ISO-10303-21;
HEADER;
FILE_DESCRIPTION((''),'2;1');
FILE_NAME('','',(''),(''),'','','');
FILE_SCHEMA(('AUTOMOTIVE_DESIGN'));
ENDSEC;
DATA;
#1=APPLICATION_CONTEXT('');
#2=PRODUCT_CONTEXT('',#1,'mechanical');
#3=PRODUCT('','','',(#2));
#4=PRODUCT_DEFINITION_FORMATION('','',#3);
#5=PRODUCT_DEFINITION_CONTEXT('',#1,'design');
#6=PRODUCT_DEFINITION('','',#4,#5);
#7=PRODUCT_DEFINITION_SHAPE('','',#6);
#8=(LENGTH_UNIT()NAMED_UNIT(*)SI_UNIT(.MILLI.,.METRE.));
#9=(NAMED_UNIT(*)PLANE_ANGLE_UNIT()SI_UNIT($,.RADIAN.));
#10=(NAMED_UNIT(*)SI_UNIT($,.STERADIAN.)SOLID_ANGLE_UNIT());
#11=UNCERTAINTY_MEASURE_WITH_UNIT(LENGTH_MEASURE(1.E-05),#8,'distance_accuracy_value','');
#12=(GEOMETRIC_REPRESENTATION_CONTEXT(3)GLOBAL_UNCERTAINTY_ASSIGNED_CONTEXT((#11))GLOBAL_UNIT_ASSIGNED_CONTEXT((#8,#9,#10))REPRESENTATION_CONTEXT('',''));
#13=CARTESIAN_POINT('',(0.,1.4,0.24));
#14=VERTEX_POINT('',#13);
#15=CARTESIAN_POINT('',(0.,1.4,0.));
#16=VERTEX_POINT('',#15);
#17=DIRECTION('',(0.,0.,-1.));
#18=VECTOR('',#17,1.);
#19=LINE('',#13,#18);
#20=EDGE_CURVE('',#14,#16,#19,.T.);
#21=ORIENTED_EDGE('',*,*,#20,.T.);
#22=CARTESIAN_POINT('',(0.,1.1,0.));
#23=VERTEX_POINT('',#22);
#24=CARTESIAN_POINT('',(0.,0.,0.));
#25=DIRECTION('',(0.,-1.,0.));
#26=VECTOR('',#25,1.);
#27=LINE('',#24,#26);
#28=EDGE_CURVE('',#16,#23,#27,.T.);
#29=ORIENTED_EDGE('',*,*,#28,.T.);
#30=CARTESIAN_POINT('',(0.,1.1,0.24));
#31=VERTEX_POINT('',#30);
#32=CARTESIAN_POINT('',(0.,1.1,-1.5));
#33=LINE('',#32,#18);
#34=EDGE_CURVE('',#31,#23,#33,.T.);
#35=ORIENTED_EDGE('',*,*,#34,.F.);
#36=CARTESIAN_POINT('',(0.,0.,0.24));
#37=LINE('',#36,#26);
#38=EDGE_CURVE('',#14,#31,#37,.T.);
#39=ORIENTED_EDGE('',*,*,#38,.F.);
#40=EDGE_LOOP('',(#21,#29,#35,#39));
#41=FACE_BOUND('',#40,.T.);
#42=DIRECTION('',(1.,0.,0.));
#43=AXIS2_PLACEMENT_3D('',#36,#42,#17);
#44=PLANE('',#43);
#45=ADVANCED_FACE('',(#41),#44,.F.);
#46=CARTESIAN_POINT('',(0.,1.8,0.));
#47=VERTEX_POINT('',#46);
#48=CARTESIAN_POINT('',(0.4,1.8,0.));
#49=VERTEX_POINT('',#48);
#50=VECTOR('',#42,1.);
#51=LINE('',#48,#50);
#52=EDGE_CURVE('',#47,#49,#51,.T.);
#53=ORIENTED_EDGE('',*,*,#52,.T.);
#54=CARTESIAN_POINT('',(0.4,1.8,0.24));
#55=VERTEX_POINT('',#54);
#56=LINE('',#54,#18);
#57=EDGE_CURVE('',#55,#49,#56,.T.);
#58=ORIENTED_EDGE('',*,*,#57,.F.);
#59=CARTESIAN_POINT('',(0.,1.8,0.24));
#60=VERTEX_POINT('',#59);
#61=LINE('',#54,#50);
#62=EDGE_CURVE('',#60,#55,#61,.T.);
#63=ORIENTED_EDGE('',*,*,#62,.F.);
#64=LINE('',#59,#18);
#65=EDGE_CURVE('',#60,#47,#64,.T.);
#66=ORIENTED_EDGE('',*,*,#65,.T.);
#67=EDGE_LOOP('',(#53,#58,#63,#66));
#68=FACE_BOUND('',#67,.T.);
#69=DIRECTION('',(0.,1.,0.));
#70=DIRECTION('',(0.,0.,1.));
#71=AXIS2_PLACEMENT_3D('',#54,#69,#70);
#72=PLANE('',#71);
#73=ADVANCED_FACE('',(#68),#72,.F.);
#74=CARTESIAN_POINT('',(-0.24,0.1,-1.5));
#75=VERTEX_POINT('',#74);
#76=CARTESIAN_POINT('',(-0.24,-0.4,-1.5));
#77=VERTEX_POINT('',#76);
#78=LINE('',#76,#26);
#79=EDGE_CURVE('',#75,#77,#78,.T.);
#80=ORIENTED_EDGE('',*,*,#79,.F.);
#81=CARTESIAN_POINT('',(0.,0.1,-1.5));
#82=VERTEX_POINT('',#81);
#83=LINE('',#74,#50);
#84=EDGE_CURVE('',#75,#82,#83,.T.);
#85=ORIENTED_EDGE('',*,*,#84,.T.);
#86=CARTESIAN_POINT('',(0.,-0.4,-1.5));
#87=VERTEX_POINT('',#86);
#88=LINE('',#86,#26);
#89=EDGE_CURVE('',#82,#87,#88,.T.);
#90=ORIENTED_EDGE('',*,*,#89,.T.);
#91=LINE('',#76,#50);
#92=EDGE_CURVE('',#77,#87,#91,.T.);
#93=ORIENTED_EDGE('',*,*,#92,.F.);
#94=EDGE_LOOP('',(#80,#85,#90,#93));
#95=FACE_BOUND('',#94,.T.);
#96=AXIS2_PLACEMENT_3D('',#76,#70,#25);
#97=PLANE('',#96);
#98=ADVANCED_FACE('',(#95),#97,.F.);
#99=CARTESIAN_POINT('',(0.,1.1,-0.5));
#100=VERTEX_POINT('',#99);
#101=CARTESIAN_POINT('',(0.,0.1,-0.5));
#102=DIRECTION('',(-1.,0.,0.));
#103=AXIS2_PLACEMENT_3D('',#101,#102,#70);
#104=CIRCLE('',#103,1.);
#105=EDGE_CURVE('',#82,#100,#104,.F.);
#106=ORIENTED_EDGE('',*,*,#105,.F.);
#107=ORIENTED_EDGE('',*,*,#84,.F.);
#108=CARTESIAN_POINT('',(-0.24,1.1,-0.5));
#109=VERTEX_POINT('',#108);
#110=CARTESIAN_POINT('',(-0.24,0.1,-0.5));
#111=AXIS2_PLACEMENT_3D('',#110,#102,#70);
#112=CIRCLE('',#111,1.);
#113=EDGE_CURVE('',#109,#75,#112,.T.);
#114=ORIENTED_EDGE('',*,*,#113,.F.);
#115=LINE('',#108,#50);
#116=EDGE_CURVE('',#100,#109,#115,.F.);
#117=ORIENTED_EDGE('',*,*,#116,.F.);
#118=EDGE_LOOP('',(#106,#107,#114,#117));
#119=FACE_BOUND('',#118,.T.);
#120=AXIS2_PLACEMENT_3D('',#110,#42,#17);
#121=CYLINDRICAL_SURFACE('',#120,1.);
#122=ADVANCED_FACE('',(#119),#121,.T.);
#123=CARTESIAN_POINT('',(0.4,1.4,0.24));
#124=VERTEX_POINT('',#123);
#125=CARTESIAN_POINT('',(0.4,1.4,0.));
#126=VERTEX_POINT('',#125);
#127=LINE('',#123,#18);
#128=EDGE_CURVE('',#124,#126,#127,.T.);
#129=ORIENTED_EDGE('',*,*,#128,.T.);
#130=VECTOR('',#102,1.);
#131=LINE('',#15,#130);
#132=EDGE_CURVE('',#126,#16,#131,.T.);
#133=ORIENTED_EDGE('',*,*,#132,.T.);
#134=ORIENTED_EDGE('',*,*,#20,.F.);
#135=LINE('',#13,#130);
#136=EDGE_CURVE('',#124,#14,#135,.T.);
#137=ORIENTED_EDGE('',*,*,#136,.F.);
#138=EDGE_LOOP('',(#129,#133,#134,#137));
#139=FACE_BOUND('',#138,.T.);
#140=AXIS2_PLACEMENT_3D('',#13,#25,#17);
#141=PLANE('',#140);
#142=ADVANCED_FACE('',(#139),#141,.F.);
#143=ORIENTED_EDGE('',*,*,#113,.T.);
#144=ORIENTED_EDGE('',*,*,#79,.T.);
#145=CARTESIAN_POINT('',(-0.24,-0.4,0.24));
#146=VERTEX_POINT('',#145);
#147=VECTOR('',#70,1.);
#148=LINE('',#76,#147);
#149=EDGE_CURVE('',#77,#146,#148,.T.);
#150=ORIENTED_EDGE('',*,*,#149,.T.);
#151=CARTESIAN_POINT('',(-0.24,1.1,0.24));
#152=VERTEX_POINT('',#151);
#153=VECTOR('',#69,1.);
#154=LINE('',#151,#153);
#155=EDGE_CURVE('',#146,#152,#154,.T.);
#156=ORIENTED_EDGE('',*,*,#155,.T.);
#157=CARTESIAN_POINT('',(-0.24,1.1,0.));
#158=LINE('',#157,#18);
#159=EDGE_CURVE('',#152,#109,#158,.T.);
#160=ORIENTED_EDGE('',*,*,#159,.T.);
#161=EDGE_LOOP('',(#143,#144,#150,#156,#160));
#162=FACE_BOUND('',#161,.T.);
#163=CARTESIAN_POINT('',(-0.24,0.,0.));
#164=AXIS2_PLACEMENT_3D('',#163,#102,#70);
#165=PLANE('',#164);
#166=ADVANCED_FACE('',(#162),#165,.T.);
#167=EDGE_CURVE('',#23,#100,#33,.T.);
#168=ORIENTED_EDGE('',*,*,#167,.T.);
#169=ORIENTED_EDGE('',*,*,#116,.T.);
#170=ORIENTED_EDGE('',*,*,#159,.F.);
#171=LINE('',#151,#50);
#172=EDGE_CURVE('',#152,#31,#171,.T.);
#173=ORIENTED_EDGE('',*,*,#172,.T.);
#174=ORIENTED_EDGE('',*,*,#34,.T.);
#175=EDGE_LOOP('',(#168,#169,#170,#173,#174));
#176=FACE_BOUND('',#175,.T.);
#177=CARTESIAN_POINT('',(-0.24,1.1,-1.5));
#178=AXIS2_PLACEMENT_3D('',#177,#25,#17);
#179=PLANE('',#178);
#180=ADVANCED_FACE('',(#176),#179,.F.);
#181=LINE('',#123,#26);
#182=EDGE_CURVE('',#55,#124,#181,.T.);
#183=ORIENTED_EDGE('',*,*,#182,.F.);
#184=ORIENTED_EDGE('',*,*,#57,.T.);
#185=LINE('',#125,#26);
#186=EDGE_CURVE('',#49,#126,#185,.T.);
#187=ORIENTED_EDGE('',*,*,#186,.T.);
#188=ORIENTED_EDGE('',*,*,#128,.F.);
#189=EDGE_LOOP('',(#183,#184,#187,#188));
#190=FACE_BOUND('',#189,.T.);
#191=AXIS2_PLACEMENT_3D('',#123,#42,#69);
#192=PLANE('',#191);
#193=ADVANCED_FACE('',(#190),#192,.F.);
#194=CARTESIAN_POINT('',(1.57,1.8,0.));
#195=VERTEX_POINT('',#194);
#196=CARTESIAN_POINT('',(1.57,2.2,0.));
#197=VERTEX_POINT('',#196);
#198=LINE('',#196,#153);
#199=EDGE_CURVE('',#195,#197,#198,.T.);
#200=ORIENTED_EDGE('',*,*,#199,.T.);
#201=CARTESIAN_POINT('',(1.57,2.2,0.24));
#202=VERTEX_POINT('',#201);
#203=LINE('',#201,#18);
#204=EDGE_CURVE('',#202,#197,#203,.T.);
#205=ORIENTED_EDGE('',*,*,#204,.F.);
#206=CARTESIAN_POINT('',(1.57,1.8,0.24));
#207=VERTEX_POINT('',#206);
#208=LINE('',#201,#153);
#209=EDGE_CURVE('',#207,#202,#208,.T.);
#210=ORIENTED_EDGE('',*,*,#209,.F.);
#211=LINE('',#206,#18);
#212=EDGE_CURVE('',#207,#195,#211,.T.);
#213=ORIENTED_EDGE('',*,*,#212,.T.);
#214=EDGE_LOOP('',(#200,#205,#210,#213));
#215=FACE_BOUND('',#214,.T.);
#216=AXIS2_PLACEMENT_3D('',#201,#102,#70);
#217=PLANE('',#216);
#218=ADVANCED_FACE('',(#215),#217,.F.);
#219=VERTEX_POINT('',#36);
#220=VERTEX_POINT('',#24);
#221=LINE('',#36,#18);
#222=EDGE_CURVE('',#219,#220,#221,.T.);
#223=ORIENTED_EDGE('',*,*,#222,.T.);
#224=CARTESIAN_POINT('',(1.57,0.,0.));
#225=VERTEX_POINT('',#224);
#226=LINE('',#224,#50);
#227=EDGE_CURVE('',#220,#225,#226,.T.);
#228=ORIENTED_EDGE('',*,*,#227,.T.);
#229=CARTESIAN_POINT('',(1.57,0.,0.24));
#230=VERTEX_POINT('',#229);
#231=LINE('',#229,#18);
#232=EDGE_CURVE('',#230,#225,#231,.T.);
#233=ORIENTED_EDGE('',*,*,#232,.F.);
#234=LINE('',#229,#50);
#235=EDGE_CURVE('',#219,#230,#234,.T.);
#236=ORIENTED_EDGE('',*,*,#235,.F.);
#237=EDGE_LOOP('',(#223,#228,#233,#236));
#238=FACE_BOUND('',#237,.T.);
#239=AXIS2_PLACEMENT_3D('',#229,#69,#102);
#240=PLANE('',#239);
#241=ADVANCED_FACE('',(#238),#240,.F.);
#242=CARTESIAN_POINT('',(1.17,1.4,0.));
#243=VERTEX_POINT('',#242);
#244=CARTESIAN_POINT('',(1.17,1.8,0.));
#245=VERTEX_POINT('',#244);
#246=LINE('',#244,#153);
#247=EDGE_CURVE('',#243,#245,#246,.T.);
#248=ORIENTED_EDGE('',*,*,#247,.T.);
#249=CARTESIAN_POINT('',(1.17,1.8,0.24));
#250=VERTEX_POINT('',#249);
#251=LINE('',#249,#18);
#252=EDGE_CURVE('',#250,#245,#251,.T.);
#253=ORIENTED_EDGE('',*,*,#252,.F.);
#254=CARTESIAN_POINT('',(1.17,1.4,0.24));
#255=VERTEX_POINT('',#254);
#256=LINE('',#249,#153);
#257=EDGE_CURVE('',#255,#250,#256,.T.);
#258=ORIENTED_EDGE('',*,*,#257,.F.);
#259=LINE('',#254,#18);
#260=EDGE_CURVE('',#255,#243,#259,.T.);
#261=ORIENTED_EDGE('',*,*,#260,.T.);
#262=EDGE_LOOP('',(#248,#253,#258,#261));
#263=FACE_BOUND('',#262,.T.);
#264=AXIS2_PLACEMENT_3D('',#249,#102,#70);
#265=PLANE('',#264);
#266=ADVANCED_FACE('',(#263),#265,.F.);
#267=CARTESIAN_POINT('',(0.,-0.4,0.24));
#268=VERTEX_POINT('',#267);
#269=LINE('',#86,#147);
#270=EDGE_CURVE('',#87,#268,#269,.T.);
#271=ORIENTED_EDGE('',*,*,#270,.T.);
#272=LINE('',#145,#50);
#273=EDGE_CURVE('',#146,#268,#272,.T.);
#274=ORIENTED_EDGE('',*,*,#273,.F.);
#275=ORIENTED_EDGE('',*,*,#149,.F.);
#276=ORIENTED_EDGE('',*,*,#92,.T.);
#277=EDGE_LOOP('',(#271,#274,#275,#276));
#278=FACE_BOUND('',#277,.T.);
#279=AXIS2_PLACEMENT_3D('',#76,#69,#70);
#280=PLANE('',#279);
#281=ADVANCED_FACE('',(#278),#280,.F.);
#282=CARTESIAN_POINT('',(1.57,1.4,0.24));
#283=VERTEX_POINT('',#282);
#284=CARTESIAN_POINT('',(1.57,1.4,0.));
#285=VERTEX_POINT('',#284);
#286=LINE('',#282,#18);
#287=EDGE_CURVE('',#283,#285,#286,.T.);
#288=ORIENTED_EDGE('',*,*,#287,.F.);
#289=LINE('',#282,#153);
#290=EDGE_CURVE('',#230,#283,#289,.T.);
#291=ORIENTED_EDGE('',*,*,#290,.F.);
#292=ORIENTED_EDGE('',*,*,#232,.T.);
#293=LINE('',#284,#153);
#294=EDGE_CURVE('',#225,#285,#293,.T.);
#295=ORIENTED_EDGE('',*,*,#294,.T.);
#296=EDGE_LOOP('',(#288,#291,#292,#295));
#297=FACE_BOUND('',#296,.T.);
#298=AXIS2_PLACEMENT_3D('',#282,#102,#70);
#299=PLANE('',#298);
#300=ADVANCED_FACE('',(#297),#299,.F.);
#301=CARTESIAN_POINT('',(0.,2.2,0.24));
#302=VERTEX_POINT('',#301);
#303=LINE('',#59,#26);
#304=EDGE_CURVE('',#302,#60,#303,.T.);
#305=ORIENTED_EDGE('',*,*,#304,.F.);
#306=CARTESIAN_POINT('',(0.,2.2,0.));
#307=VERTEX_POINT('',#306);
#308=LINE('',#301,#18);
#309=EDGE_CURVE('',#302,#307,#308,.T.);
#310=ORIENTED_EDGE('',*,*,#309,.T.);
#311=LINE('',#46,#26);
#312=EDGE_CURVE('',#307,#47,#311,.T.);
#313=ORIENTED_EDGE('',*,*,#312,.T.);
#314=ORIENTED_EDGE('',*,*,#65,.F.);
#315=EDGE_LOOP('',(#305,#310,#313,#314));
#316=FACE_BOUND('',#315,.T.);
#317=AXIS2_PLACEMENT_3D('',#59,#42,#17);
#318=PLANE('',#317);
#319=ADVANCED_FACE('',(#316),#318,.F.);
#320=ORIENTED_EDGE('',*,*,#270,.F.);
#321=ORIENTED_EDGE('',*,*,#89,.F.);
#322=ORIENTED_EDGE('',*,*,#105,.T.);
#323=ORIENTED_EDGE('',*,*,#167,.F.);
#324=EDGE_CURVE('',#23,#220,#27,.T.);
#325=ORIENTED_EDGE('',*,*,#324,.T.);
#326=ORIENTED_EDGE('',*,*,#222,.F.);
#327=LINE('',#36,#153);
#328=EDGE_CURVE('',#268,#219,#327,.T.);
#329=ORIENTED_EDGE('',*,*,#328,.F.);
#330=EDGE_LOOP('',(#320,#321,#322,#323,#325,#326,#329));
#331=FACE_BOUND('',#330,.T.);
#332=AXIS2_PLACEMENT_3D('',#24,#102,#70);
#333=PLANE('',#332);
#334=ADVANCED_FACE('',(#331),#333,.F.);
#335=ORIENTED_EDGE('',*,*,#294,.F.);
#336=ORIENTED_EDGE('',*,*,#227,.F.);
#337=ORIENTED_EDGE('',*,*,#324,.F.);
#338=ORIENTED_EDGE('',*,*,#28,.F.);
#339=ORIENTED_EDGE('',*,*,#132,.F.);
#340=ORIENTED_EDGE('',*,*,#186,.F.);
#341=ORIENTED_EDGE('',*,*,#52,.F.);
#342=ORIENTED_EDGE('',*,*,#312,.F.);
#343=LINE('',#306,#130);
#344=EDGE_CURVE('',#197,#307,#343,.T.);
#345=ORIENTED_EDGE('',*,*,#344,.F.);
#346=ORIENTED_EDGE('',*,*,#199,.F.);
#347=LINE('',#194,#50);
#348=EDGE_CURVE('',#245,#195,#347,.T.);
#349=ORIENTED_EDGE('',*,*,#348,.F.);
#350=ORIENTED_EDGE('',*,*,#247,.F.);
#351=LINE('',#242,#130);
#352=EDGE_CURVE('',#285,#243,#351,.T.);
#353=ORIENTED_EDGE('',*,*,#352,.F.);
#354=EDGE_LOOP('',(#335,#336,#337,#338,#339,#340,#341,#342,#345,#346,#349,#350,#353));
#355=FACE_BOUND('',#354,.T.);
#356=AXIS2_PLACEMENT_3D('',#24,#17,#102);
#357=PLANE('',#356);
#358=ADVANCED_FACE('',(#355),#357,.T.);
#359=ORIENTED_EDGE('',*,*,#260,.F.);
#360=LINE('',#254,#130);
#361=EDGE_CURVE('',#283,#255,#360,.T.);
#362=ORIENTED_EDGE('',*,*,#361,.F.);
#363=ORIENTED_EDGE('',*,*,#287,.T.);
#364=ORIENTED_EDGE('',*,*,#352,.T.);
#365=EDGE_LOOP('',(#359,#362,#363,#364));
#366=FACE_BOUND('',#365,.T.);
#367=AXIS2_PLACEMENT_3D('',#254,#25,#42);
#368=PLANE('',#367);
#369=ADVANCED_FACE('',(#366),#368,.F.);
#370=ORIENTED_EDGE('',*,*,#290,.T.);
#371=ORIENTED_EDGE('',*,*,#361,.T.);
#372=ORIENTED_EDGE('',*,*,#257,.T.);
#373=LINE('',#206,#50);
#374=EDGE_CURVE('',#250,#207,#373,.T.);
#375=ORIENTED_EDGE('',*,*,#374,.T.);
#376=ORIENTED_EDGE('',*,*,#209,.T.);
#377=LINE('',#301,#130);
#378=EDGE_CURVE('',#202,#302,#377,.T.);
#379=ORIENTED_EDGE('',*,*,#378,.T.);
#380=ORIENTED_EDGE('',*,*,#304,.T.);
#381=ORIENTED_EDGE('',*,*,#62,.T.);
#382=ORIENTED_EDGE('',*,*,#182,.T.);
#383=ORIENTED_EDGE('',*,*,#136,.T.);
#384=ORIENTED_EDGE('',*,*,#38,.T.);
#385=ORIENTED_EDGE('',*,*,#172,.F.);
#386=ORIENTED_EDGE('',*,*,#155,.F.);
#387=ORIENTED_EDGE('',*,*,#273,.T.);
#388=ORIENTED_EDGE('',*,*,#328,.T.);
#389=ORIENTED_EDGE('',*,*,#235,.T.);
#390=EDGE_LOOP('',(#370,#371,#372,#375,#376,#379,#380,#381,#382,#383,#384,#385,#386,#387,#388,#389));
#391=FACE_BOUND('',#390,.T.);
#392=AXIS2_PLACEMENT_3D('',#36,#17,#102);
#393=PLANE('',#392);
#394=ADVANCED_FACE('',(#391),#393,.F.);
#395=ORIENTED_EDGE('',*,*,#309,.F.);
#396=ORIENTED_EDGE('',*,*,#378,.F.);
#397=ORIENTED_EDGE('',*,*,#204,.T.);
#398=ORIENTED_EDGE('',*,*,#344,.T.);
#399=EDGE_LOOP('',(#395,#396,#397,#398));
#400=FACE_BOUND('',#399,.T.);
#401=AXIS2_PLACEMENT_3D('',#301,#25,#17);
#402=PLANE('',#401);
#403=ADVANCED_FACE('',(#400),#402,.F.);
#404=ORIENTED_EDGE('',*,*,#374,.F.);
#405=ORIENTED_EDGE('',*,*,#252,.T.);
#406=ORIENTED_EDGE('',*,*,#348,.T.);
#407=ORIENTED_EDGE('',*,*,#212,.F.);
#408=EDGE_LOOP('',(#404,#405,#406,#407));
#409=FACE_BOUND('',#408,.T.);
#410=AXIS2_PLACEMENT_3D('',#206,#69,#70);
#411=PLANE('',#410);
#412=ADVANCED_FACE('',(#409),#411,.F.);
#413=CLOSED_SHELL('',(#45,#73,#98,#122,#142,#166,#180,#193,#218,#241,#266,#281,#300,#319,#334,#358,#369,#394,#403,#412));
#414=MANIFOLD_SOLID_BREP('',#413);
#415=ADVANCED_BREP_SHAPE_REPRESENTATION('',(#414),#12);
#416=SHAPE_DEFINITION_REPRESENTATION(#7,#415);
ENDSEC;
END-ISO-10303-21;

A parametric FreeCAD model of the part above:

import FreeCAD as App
import Part
import Sketcher
from FreeCAD import Vector
Q = App.Units.Quantity


def edges_at(feature, points):
    """Names of the edges that pass closest to the given points."""
    edges = feature.Shape.Edges
    near = lambda p: min(range(len(edges)), key=lambda i: edges[i].distToShape(Part.Vertex(*p))[0])
    return sorted({f"Edge{near(p) + 1}" for p in points})


def add_polygon(sketch, points):
    """Adds a closed chain of lines whose ends are joined by coincident constraints."""
    first, n = sketch.GeometryCount, len(points)
    for a, b in zip(points, points[1:] + points[:1]):
        sketch.addGeometry(Part.LineSegment(App.Vector(*a, 0), App.Vector(*b, 0)), False)
    for i in range(n):
        sketch.addConstraint(Sketcher.Constraint("Coincident", first + i, 2, first + (i + 1) % n, 1))

doc = App.newDocument("Part")
params = doc.addObject("Spreadsheet::Sheet", "Params")
for row, (alias, value) in enumerate([
    ("sketch1_width", "0.4 mm"),
    ("sketch1_height", "1.4 mm"),
    ("sketch1_width2", "1.57 mm"),
    ("pad1_length", "0.24 mm"),
    ("sketch2_width", "1.5 mm"),
    ("sketch2_height", "1.74 mm"),
    ("pad2_length", "0.24 mm"),
    ("fillet_radius", "1 mm"),
], start=1):
    params.set(f"A{row}", alias)
    params.set(f"B{row}", "=" + value)
    params.setAlias(f"B{row}", alias)

body = doc.addObject("PartDesign::Body", "Body")

sketch1 = body.newObject("Sketcher::SketchObject", "Sketch")
sketch1.AttachmentSupport = (doc.getObject("XY_Plane"), [""])
sketch1.MapMode = "FlatFace"
add_polygon(sketch1, [(0, 1.4), (0, 0), (1.57, 0), (1.57, 1.4), (1.17, 1.4), (1.17, 1.8), (1.57, 1.8), (1.57, 2.2), (0, 2.2), (0, 1.8), (0.4, 1.8), (0.4, 1.4)])
sketch1.addConstraint([
    Sketcher.Constraint("Vertical", 0),
    Sketcher.Constraint("Horizontal", 1),
    Sketcher.Constraint("Vertical", 2),
    Sketcher.Constraint("Horizontal", 3),
    Sketcher.Constraint("Vertical", 4),
    Sketcher.Constraint("Horizontal", 5),
    Sketcher.Constraint("Vertical", 6),
    Sketcher.Constraint("Horizontal", 7),
    Sketcher.Constraint("Vertical", 8),
    Sketcher.Constraint("Horizontal", 9),
    Sketcher.Constraint("Vertical", 10),
    Sketcher.Constraint("Horizontal", 11),
    Sketcher.Constraint("Coincident", 0, 2, -1, 1),
    Sketcher.Constraint("PointOnObject", 7, 2, -2),
    Sketcher.Constraint("Horizontal", 5, 2, 8, 2),
    Sketcher.Constraint("Horizontal", 3, 2, 10, 2),
    Sketcher.Constraint("Vertical", 2, 2, 5, 2),
    Sketcher.Constraint("Equal", 5, 9),
    Sketcher.Constraint("Equal", 11, 4),
    Sketcher.Constraint("Equal", 4, 6),
    Sketcher.Constraint("DistanceX", 3, 2, 3, 1, Q("0.4 mm")),
    Sketcher.Constraint("DistanceY", 0, 2, 0, 1, Q("1.4 mm")),
    Sketcher.Constraint("DistanceX", 1, 1, 1, 2, Q("1.57 mm")),
])
sketch1.setExpression("Constraints[32]", "Params.sketch1_width")
sketch1.setExpression("Constraints[33]", "Params.sketch1_height")
sketch1.setExpression("Constraints[34]", "Params.sketch1_width2")
pad1 = body.newObject("PartDesign::Pad", "Pad")
pad1.Profile = sketch1
pad1.setExpression("Length", "Params.pad1_length")

sketch2 = body.newObject("Sketcher::SketchObject", "Sketch001")
sketch2.AttachmentSupport = (doc.getObject("YZ_Plane"), [""])
sketch2.MapMode = "FlatFace"
add_polygon(sketch2, [(-0.4, 0.2), (1.1, 0.2), (1.1, -1.5), (-0.4, -1.5)])
sketch2.addConstraint([
    Sketcher.Constraint("Horizontal", 0),
    Sketcher.Constraint("Vertical", 1),
    Sketcher.Constraint("Horizontal", 2),
    Sketcher.Constraint("Vertical", 3),
    Sketcher.Constraint("DistanceX", 0, 1, 0, 2, Q("1.5 mm")),
    Sketcher.Constraint("DistanceY", 1, 2, 1, 1, Q("1.74 mm")),
    Sketcher.Constraint("DistanceX", -1, 1, 0, 2, Q("1.1 mm")),
    Sketcher.Constraint("DistanceY", 1, 2, -1, 1, Q("1.5 mm")),
])
sketch2.setExpression("Constraints[8]", "Params.sketch2_width")
sketch2.setExpression("Constraints[9]", "Params.sketch2_height")
pad2 = body.newObject("PartDesign::Pad", "Pad001")
pad2.Profile = sketch2
pad2.setExpression("Length", "Params.pad2_length")
pad2.Reversed = True
doc.recompute()

fillet = body.newObject("PartDesign::Fillet", "Fillet")
fillet.Base = (pad2, edges_at(pad2, [(-0.12, 1.1, -1.5)]))
fillet.setExpression("Radius", "Params.fillet_radius")

doc.recompute()
